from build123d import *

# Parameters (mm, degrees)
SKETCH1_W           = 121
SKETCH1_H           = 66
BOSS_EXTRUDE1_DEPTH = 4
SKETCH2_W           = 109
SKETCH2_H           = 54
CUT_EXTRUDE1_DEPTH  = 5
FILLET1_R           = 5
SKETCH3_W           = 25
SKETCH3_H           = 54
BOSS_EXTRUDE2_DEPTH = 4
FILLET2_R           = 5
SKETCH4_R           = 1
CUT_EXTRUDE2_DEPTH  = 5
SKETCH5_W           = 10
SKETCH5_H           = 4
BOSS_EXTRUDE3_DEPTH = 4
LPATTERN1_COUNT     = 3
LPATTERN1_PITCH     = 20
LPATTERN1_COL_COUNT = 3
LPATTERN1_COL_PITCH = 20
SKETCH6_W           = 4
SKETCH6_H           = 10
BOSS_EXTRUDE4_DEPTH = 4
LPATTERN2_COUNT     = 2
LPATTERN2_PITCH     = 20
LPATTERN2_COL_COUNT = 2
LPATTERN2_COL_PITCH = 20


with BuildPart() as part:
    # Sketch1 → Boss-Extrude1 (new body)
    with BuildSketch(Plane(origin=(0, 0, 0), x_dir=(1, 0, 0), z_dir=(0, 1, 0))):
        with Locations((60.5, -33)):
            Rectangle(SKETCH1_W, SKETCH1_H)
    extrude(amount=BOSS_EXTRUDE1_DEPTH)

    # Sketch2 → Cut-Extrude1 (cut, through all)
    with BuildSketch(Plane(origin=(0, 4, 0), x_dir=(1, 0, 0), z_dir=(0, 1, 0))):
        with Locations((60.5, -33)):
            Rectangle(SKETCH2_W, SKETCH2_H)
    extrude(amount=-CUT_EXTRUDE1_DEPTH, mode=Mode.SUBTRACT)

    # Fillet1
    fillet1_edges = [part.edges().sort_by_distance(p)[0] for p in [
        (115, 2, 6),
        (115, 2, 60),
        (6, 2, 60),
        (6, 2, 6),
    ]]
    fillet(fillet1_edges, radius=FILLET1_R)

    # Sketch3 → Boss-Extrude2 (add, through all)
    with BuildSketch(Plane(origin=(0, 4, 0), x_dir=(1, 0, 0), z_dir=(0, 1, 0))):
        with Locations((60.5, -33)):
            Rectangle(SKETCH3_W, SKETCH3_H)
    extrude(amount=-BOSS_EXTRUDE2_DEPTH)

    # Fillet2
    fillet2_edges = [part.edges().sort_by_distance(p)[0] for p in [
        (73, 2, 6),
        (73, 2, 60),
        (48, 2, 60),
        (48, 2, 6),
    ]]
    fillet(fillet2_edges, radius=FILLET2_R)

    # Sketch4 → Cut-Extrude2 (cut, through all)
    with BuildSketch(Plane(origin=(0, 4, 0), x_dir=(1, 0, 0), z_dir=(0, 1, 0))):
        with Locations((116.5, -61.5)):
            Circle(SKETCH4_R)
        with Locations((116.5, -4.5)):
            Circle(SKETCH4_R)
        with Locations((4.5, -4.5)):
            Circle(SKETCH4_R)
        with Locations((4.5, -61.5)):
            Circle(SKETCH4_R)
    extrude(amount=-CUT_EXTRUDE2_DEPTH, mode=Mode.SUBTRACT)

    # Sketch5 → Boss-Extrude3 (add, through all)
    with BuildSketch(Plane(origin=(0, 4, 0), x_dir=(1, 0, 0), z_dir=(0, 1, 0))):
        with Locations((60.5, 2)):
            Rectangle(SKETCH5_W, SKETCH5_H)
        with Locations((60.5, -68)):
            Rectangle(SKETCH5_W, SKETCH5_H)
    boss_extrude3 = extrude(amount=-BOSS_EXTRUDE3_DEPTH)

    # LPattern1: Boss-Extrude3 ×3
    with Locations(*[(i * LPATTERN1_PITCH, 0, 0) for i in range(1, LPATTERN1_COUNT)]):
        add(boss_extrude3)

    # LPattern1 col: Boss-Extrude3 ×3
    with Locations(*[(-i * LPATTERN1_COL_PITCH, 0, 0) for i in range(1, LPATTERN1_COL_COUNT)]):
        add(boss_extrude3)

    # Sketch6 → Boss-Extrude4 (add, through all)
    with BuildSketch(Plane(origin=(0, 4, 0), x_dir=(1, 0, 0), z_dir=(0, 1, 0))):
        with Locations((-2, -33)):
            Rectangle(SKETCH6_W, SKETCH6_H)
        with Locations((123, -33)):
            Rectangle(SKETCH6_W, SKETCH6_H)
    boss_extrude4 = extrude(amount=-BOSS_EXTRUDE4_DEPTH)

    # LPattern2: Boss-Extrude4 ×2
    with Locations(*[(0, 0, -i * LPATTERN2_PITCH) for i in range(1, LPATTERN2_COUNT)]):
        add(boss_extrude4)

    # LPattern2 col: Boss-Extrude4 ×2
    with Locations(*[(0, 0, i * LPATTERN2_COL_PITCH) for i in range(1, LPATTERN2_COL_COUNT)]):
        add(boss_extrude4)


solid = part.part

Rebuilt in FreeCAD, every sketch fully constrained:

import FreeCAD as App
import Part
import Sketcher
Q = App.Units.Quantity


def edges_at(feature, points):
    """Names of the edges that pass closest to the given points."""
    edges = feature.Shape.Edges
    near = lambda p: min(range(len(edges)), key=lambda i: edges[i].distToShape(Part.Vertex(*p))[0])
    return sorted({f"Edge{near(p) + 1}" for p in points})

doc = App.newDocument("Part")
body = doc.addObject("PartDesign::Body", "Body")

sketch1 = body.newObject("Sketcher::SketchObject", "Sketch")
sketch1.AttachmentSupport = (doc.getObject("XZ_Plane"), [""])
sketch1.MapMode = "FlatFace"
sketch1.addGeometry([
    Part.LineSegment(App.Vector(0, 0, 0), App.Vector(0, 66, 0)),
    Part.LineSegment(App.Vector(0, 66, 0), App.Vector(121, 66, 0)),
    Part.LineSegment(App.Vector(121, 66, 0), App.Vector(121, 0, 0)),
    Part.LineSegment(App.Vector(121, 0, 0), App.Vector(0, 0, 0)),
], False)
sketch1.addConstraint([
    Sketcher.Constraint("Coincident", 0, 2, 1, 1),
    Sketcher.Constraint("Coincident", 1, 2, 2, 1),
    Sketcher.Constraint("Coincident", 2, 2, 3, 1),
    Sketcher.Constraint("Coincident", 3, 2, 0, 1),
    Sketcher.Constraint("Vertical", 0),
    Sketcher.Constraint("Horizontal", 1),
    Sketcher.Constraint("Vertical", 2),
    Sketcher.Constraint("Horizontal", 3),
    Sketcher.Constraint("Coincident", 3, 2, -1, 1),
    Sketcher.Constraint("DistanceX", 1, 1, 1, 2, Q("121 mm")),
    Sketcher.Constraint("DistanceY", 0, 1, 0, 2, Q("66 mm")),
])
pad1 = body.newObject("PartDesign::Pad", "Pad")
pad1.Profile = sketch1
pad1.Length = 4
pad1.Reversed = True

sketch2 = body.newObject("Sketcher::SketchObject", "Sketch001")
sketch2.AttachmentSupport = (doc.getObject("XZ_Plane"), [""])
sketch2.MapMode = "FlatFace"
sketch2.AttachmentOffset = App.Placement(App.Vector(0, 0, -4), App.Rotation())
sketch2.addGeometry([
    Part.LineSegment(App.Vector(6, 6, 0), App.Vector(6, 60, 0)),
    Part.LineSegment(App.Vector(6, 60, 0), App.Vector(115, 60, 0)),
    Part.LineSegment(App.Vector(115, 60, 0), App.Vector(115, 6, 0)),
    Part.LineSegment(App.Vector(115, 6, 0), App.Vector(6, 6, 0)),
], False)
sketch2.addConstraint([
    Sketcher.Constraint("Coincident", 0, 2, 1, 1),
    Sketcher.Constraint("Coincident", 1, 2, 2, 1),
    Sketcher.Constraint("Coincident", 2, 2, 3, 1),
    Sketcher.Constraint("Coincident", 3, 2, 0, 1),
    Sketcher.Constraint("Vertical", 0),
    Sketcher.Constraint("Horizontal", 1),
    Sketcher.Constraint("Vertical", 2),
    Sketcher.Constraint("Horizontal", 3),
    Sketcher.Constraint("DistanceX", 1, 1, 1, 2, Q("109 mm")),
    Sketcher.Constraint("DistanceY", 0, 1, 0, 2, Q("54 mm")),
    Sketcher.Constraint("DistanceX", -1, 1, 0, 2, Q("6 mm")),
    Sketcher.Constraint("DistanceY", -1, 1, 0, 2, Q("60 mm")),
])
pocket1 = body.newObject("PartDesign::Pocket", "Pocket")
pocket1.Profile = sketch2
pocket1.Type = "ThroughAll"
pocket1.Reversed = True
doc.recompute()

fillet = body.newObject("PartDesign::Fillet", "Fillet")
fillet.Base = (pocket1, edges_at(pocket1, [
    (115, 2, 6),
    (115, 2, 60),
    (6, 2, 60),
    (6, 2, 6),
]))
fillet.Radius = 5

sketch3 = body.newObject("Sketcher::SketchObject", "Sketch002")
sketch3.AttachmentSupport = (doc.getObject("XZ_Plane"), [""])
sketch3.MapMode = "FlatFace"
sketch3.AttachmentOffset = App.Placement(App.Vector(0, 0, -4), App.Rotation())
sketch3.addGeometry([
    Part.LineSegment(App.Vector(48, 6, 0), App.Vector(48, 60, 0)),
    Part.LineSegment(App.Vector(48, 60, 0), App.Vector(73, 60, 0)),
    Part.LineSegment(App.Vector(73, 60, 0), App.Vector(73, 6, 0)),
    Part.LineSegment(App.Vector(73, 6, 0), App.Vector(48, 6, 0)),
], False)
sketch3.addConstraint([
    Sketcher.Constraint("Coincident", 0, 2, 1, 1),
    Sketcher.Constraint("Coincident", 1, 2, 2, 1),
    Sketcher.Constraint("Coincident", 2, 2, 3, 1),
    Sketcher.Constraint("Coincident", 3, 2, 0, 1),
    Sketcher.Constraint("Vertical", 0),
    Sketcher.Constraint("Horizontal", 1),
    Sketcher.Constraint("Vertical", 2),
    Sketcher.Constraint("Horizontal", 3),
    Sketcher.Constraint("DistanceX", 1, 1, 1, 2, Q("25 mm")),
    Sketcher.Constraint("DistanceY", 0, 1, 0, 2, Q("54 mm")),
    Sketcher.Constraint("DistanceX", -1, 1, 0, 2, Q("48 mm")),
    Sketcher.Constraint("DistanceY", -1, 1, 0, 2, Q("60 mm")),
])
pad2 = body.newObject("PartDesign::Pad", "Pad001")
pad2.Profile = sketch3
pad2.Length = 4
doc.recompute()

fillet2 = body.newObject("PartDesign::Fillet", "Fillet001")
fillet2.Base = (pad2, edges_at(pad2, [
    (73, 2, 6),
    (73, 2, 60),
    (48, 2, 60),
    (48, 2, 6),
]))
fillet2.Radius = 5

sketch4 = body.newObject("Sketcher::SketchObject", "Sketch003")
sketch4.AttachmentSupport = (doc.getObject("XZ_Plane"), [""])
sketch4.MapMode = "FlatFace"
sketch4.AttachmentOffset = App.Placement(App.Vector(0, 0, -4), App.Rotation())
sketch4.addGeometry([
    Part.Circle(App.Vector(116.5, 61.5, 0), App.Vector(0, 0, 1), 1),
    Part.Circle(App.Vector(116.5, 4.5, 0), App.Vector(0, 0, 1), 1),
    Part.Circle(App.Vector(4.5, 4.5, 0), App.Vector(0, 0, 1), 1),
    Part.Circle(App.Vector(4.5, 61.5, 0), App.Vector(0, 0, 1), 1),
], False)
sketch4.addConstraint([
    Sketcher.Constraint("Equal", 0, 1),
    Sketcher.Constraint("Equal", 1, 2),
    Sketcher.Constraint("Equal", 2, 3),
    Sketcher.Constraint("Horizontal", 1, 3, 2, 3),
    Sketcher.Constraint("Horizontal", 0, 3, 3, 3),
    Sketcher.Constraint("Vertical", 0, 3, 1, 3),
    Sketcher.Constraint("Vertical", 2, 3, 3, 3),
    Sketcher.Constraint("Diameter", 0, Q("2 mm")),
    Sketcher.Constraint("DistanceY", 1, 3, 0, 3, Q("57 mm")),
    Sketcher.Constraint("DistanceX", 2, 3, 1, 3, Q("112 mm")),
    Sketcher.Constraint("DistanceX", -1, 1, 0, 3, Q("116.5 mm")),
    Sketcher.Constraint("DistanceY", -1, 1, 0, 3, Q("61.5 mm")),
])
pocket2 = body.newObject("PartDesign::Pocket", "Pocket001")
pocket2.Profile = sketch4
pocket2.Type = "ThroughAll"
pocket2.Reversed = True

sketch5 = body.newObject("Sketcher::SketchObject", "Sketch004")
sketch5.AttachmentSupport = (doc.getObject("XZ_Plane"), [""])
sketch5.MapMode = "FlatFace"
sketch5.AttachmentOffset = App.Placement(App.Vector(0, 0, -4), App.Rotation())
sketch5.addGeometry([
    Part.LineSegment(App.Vector(55.5, -4, 0), App.Vector(55.5, 0, 0)),
    Part.LineSegment(App.Vector(55.5, 0, 0), App.Vector(65.5, 0, 0)),
    Part.LineSegment(App.Vector(65.5, 0, 0), App.Vector(65.5, -4, 0)),
    Part.LineSegment(App.Vector(65.5, -4, 0), App.Vector(55.5, -4, 0)),
    Part.LineSegment(App.Vector(55.5, 66, 0), App.Vector(55.5, 70, 0)),
    Part.LineSegment(App.Vector(55.5, 70, 0), App.Vector(65.5, 70, 0)),
    Part.LineSegment(App.Vector(65.5, 70, 0), App.Vector(65.5, 66, 0)),
    Part.LineSegment(App.Vector(65.5, 66, 0), App.Vector(55.5, 66, 0)),
], False)
sketch5.addConstraint([
    Sketcher.Constraint("Coincident", 0, 2, 1, 1),
    Sketcher.Constraint("Coincident", 1, 2, 2, 1),
    Sketcher.Constraint("Coincident", 2, 2, 3, 1),
    Sketcher.Constraint("Coincident", 3, 2, 0, 1),
    Sketcher.Constraint("Coincident", 4, 2, 5, 1),
    Sketcher.Constraint("Coincident", 5, 2, 6, 1),
    Sketcher.Constraint("Coincident", 6, 2, 7, 1),
    Sketcher.Constraint("Coincident", 7, 2, 4, 1),
    Sketcher.Constraint("Vertical", 0),
    Sketcher.Constraint("Horizontal", 1),
    Sketcher.Constraint("Vertical", 2),
    Sketcher.Constraint("Horizontal", 3),
    Sketcher.Constraint("Vertical", 4),
    Sketcher.Constraint("Horizontal", 5),
    Sketcher.Constraint("Vertical", 6),
    Sketcher.Constraint("Horizontal", 7),
    Sketcher.Constraint("PointOnObject", 0, 2, -1),
    Sketcher.Constraint("Vertical", 3, 2, 4, 2),
    Sketcher.Constraint("Vertical", 2, 2, 5, 2),
    Sketcher.Constraint("Equal", 2, 4),
    Sketcher.Constraint("DistanceX", 1, 1, 1, 2, Q("10 mm")),
    Sketcher.Constraint("DistanceY", 0, 1, 0, 2, Q("4 mm")),
    Sketcher.Constraint("DistanceY", -1, 1, 4, 2, Q("70 mm")),
    Sketcher.Constraint("DistanceX", -1, 1, 0, 2, Q("55.5 mm")),
])
pad3 = body.newObject("PartDesign::Pad", "Pad002")
pad3.Profile = sketch5
pad3.Type = "UpToLast"
doc.recompute()

linearpattern = body.newObject("PartDesign::LinearPattern", "LinearPattern")
linearpattern.Originals = [pad3]
linearpattern.Direction = (doc.getObject("X_Axis"), [""])
linearpattern.Mode = "offset"
linearpattern.Offset = 20
linearpattern.Occurrences = 3
body.Tip = linearpattern
doc.recompute()

linearpattern2 = body.newObject("PartDesign::LinearPattern", "LinearPattern001")
linearpattern2.Originals = [pad3]
linearpattern2.Direction = (doc.getObject("X_Axis"), [""])
linearpattern2.Mode = "offset"
linearpattern2.Offset = 20
linearpattern2.Occurrences = 3
linearpattern2.Reversed = True
body.Tip = linearpattern2

sketch6 = body.newObject("Sketcher::SketchObject", "Sketch005")
sketch6.AttachmentSupport = (doc.getObject("XZ_Plane"), [""])
sketch6.MapMode = "FlatFace"
sketch6.AttachmentOffset = App.Placement(App.Vector(0, 0, -4), App.Rotation())
sketch6.addGeometry([
    Part.LineSegment(App.Vector(-4, 28, 0), App.Vector(-4, 38, 0)),
    Part.LineSegment(App.Vector(-4, 38, 0), App.Vector(0, 38, 0)),
    Part.LineSegment(App.Vector(0, 38, 0), App.Vector(0, 28, 0)),
    Part.LineSegment(App.Vector(0, 28, 0), App.Vector(-4, 28, 0)),
    Part.LineSegment(App.Vector(121, 28, 0), App.Vector(121, 38, 0)),
    Part.LineSegment(App.Vector(121, 38, 0), App.Vector(125, 38, 0)),
    Part.LineSegment(App.Vector(125, 38, 0), App.Vector(125, 28, 0)),
    Part.LineSegment(App.Vector(125, 28, 0), App.Vector(121, 28, 0)),
], False)
sketch6.addConstraint([
    Sketcher.Constraint("Coincident", 0, 2, 1, 1),
    Sketcher.Constraint("Coincident", 1, 2, 2, 1),
    Sketcher.Constraint("Coincident", 2, 2, 3, 1),
    Sketcher.Constraint("Coincident", 3, 2, 0, 1),
    Sketcher.Constraint("Coincident", 4, 2, 5, 1),
    Sketcher.Constraint("Coincident", 5, 2, 6, 1),
    Sketcher.Constraint("Coincident", 6, 2, 7, 1),
    Sketcher.Constraint("Coincident", 7, 2, 4, 1),
    Sketcher.Constraint("Vertical", 0),
    Sketcher.Constraint("Horizontal", 1),
    Sketcher.Constraint("Vertical", 2),
    Sketcher.Constraint("Horizontal", 3),
    Sketcher.Constraint("Vertical", 4),
    Sketcher.Constraint("Horizontal", 5),
    Sketcher.Constraint("Vertical", 6),
    Sketcher.Constraint("Horizontal", 7),
    Sketcher.Constraint("PointOnObject", 1, 2, -2),
    Sketcher.Constraint("Horizontal", 1, 2, 4, 2),
    Sketcher.Constraint("Horizontal", 3, 2, 6, 2),
    Sketcher.Constraint("Equal", 3, 5),
    Sketcher.Constraint("DistanceX", 1, 1, 1, 2, Q("4 mm")),
    Sketcher.Constraint("DistanceY", 0, 1, 0, 2, Q("10 mm")),
    Sketcher.Constraint("DistanceY", -1, 1, 0, 2, Q("38 mm")),
    Sketcher.Constraint("DistanceX", -1, 1, 4, 2, Q("121 mm")),
])
pad4 = body.newObject("PartDesign::Pad", "Pad003")
pad4.Profile = sketch6
pad4.Length = 4
doc.recompute()

linearpattern3 = body.newObject("PartDesign::LinearPattern", "LinearPattern002")
linearpattern3.Originals = [pad4]
linearpattern3.Direction = (doc.getObject("Z_Axis"), [""])
linearpattern3.Mode = "offset"
linearpattern3.Offset = 20
linearpattern3.Occurrences = 2
linearpattern3.Reversed = True
body.Tip = linearpattern3
doc.recompute()

linearpattern4 = body.newObject("PartDesign::LinearPattern", "LinearPattern003")
linearpattern4.Originals = [pad4]
linearpattern4.Direction = (doc.getObject("Z_Axis"), [""])
linearpattern4.Mode = "offset"
linearpattern4.Offset = 20
linearpattern4.Occurrences = 2
body.Tip = linearpattern4

doc.recompute()
